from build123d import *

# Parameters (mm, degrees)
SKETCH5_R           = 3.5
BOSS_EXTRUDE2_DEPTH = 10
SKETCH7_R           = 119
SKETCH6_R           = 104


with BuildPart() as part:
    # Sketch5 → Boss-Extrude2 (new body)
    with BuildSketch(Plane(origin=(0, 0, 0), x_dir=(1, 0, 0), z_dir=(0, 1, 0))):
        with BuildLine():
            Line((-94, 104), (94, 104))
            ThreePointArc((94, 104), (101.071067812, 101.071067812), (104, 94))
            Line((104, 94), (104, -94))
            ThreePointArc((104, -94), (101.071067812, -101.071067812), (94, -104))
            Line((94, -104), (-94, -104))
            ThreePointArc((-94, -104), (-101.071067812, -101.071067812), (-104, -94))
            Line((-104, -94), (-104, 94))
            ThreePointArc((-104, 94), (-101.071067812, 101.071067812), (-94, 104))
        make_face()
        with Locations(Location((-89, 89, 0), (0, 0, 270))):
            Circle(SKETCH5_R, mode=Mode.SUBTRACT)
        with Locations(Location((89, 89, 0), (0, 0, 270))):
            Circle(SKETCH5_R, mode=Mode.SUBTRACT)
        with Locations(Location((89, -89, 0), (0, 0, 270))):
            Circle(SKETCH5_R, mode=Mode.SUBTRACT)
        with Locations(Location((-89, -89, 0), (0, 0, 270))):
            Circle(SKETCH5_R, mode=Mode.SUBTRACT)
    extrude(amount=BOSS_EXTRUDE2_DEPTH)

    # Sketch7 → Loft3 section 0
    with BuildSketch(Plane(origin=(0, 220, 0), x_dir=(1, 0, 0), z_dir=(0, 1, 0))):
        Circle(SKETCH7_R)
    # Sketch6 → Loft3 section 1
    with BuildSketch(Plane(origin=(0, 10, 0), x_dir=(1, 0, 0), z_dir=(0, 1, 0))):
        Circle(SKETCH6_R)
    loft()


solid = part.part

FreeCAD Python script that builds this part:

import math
import FreeCAD as App
import Part
import Sketcher
from FreeCAD import Vector
Q = App.Units.Quantity

doc = App.newDocument("Part")
body = doc.addObject("PartDesign::Body", "Body")

sketch1 = body.newObject("Sketcher::SketchObject", "Sketch")
sketch1.AttachmentSupport = (doc.getObject("XZ_Plane"), [""])
sketch1.MapMode = "FlatFace"
sketch1.addGeometry([
    Part.LineSegment(Vector(94, -104, 0), Vector(-94, -104, 0)),
    Part.ArcOfCircle(Part.Circle(Vector(-94, -94, 0), Vector(0, 0, 1), 10), math.radians(180), math.radians(270)),
    Part.LineSegment(Vector(-104, -94, 0), Vector(-104, 94, 0)),
    Part.ArcOfCircle(Part.Circle(Vector(-94, 94, 0), Vector(0, 0, 1), 10), math.radians(90), math.radians(180)),
    Part.LineSegment(Vector(-94, 104, 0), Vector(94, 104, 0)),
    Part.ArcOfCircle(Part.Circle(Vector(94, 94, 0), Vector(0, 0, 1), 10), math.radians(0), math.radians(90)),
    Part.LineSegment(Vector(104, 94, 0), Vector(104, -94, 0)),
    Part.ArcOfCircle(Part.Circle(Vector(94, -94, 0), Vector(0, 0, 1), 10), math.radians(-90), math.radians(0)),
    Part.Circle(Vector(89, 89, 0), Vector(0, 0, 1), 3.5),
    Part.Circle(Vector(-89, 89, 0), Vector(0, 0, 1), 3.5),
    Part.Circle(Vector(89, -89, 0), Vector(0, 0, 1), 3.5),
    Part.Circle(Vector(-89, -89, 0), Vector(0, 0, 1), 3.5),
], False)
sketch1.addConstraint([
    Sketcher.Constraint("Tangent", 0, 2, 1, 2),
    Sketcher.Constraint("Tangent", 1, 1, 2, 1),
    Sketcher.Constraint("Tangent", 2, 2, 3, 2),
    Sketcher.Constraint("Tangent", 3, 1, 4, 1),
    Sketcher.Constraint("Tangent", 4, 2, 5, 2),
    Sketcher.Constraint("Tangent", 5, 1, 6, 1),
    Sketcher.Constraint("Tangent", 6, 2, 7, 2),
    Sketcher.Constraint("Tangent", 7, 1, 0, 1),
    Sketcher.Constraint("Horizontal", 0),
    Sketcher.Constraint("Vertical", 2),
    Sketcher.Constraint("Horizontal", 4),
    Sketcher.Constraint("Vertical", 6),
    Sketcher.Constraint("Equal", 1, 3),
    Sketcher.Constraint("Equal", 3, 5),
    Sketcher.Constraint("Equal", 5, 7),
    Sketcher.Constraint("Equal", 8, 9),
    Sketcher.Constraint("Equal", 9, 10),
    Sketcher.Constraint("Equal", 10, 11),
    Sketcher.Constraint("Symmetric", 1, 3, 5, 3, -1, 1),
    Sketcher.Constraint("Symmetric", 9, 3, 10, 3, -1, 1),
    Sketcher.Constraint("Symmetric", 8, 3, 11, 3, -1, 1),
    Sketcher.Constraint("Symmetric", 8, 3, 9, 3, -2),
    Sketcher.Constraint("Equal", 4, 2),
    Sketcher.Constraint("Diameter", 8, Q("7 mm")),
    Sketcher.Constraint("Radius", 1, Q("10 mm")),
    Sketcher.Constraint("DistanceX", 0, 2, 0, 1, Q("188 mm")),
    Sketcher.Constraint("DistanceX", -1, 1, 8, 3, Q("89 mm")),
    Sketcher.Constraint("DistanceY", -1, 1, 8, 3, Q("89 mm")),
])
pad1 = body.newObject("PartDesign::Pad", "Pad")
pad1.Profile = sketch1
pad1.Length = 10
pad1.Reversed = True

sketch2 = body.newObject("Sketcher::SketchObject", "Sketch001")
sketch2.AttachmentSupport = (doc.getObject("XZ_Plane"), [""])
sketch2.MapMode = "FlatFace"
sketch2.AttachmentOffset = App.Placement(Vector(0, 0, -220), App.Rotation())
sketch2.addGeometry(Part.Circle(Vector(0, 0, 0), Vector(0, 0, 1), 119), False)
sketch2.addConstraint([
    Sketcher.Constraint("Coincident", 0, 3, -1, 1),
    Sketcher.Constraint("Diameter", 0, Q("238 mm")),
])

sketch3 = body.newObject("Sketcher::SketchObject", "Sketch002")
sketch3.AttachmentSupport = (doc.getObject("XZ_Plane"), [""])
sketch3.MapMode = "FlatFace"
sketch3.AttachmentOffset = App.Placement(Vector(0, 0, -10), App.Rotation())
sketch3.addGeometry(Part.Circle(Vector(0, 0, 0), Vector(0, 0, 1), 104), False)
sketch3.addConstraint([
    Sketcher.Constraint("Coincident", 0, 3, -1, 1),
    Sketcher.Constraint("Diameter", 0, Q("208 mm")),
])

additiveloft = body.newObject("PartDesign::AdditiveLoft", "AdditiveLoft")
additiveloft.Profile = sketch2
additiveloft.Sections = [sketch3]

doc.recompute()
